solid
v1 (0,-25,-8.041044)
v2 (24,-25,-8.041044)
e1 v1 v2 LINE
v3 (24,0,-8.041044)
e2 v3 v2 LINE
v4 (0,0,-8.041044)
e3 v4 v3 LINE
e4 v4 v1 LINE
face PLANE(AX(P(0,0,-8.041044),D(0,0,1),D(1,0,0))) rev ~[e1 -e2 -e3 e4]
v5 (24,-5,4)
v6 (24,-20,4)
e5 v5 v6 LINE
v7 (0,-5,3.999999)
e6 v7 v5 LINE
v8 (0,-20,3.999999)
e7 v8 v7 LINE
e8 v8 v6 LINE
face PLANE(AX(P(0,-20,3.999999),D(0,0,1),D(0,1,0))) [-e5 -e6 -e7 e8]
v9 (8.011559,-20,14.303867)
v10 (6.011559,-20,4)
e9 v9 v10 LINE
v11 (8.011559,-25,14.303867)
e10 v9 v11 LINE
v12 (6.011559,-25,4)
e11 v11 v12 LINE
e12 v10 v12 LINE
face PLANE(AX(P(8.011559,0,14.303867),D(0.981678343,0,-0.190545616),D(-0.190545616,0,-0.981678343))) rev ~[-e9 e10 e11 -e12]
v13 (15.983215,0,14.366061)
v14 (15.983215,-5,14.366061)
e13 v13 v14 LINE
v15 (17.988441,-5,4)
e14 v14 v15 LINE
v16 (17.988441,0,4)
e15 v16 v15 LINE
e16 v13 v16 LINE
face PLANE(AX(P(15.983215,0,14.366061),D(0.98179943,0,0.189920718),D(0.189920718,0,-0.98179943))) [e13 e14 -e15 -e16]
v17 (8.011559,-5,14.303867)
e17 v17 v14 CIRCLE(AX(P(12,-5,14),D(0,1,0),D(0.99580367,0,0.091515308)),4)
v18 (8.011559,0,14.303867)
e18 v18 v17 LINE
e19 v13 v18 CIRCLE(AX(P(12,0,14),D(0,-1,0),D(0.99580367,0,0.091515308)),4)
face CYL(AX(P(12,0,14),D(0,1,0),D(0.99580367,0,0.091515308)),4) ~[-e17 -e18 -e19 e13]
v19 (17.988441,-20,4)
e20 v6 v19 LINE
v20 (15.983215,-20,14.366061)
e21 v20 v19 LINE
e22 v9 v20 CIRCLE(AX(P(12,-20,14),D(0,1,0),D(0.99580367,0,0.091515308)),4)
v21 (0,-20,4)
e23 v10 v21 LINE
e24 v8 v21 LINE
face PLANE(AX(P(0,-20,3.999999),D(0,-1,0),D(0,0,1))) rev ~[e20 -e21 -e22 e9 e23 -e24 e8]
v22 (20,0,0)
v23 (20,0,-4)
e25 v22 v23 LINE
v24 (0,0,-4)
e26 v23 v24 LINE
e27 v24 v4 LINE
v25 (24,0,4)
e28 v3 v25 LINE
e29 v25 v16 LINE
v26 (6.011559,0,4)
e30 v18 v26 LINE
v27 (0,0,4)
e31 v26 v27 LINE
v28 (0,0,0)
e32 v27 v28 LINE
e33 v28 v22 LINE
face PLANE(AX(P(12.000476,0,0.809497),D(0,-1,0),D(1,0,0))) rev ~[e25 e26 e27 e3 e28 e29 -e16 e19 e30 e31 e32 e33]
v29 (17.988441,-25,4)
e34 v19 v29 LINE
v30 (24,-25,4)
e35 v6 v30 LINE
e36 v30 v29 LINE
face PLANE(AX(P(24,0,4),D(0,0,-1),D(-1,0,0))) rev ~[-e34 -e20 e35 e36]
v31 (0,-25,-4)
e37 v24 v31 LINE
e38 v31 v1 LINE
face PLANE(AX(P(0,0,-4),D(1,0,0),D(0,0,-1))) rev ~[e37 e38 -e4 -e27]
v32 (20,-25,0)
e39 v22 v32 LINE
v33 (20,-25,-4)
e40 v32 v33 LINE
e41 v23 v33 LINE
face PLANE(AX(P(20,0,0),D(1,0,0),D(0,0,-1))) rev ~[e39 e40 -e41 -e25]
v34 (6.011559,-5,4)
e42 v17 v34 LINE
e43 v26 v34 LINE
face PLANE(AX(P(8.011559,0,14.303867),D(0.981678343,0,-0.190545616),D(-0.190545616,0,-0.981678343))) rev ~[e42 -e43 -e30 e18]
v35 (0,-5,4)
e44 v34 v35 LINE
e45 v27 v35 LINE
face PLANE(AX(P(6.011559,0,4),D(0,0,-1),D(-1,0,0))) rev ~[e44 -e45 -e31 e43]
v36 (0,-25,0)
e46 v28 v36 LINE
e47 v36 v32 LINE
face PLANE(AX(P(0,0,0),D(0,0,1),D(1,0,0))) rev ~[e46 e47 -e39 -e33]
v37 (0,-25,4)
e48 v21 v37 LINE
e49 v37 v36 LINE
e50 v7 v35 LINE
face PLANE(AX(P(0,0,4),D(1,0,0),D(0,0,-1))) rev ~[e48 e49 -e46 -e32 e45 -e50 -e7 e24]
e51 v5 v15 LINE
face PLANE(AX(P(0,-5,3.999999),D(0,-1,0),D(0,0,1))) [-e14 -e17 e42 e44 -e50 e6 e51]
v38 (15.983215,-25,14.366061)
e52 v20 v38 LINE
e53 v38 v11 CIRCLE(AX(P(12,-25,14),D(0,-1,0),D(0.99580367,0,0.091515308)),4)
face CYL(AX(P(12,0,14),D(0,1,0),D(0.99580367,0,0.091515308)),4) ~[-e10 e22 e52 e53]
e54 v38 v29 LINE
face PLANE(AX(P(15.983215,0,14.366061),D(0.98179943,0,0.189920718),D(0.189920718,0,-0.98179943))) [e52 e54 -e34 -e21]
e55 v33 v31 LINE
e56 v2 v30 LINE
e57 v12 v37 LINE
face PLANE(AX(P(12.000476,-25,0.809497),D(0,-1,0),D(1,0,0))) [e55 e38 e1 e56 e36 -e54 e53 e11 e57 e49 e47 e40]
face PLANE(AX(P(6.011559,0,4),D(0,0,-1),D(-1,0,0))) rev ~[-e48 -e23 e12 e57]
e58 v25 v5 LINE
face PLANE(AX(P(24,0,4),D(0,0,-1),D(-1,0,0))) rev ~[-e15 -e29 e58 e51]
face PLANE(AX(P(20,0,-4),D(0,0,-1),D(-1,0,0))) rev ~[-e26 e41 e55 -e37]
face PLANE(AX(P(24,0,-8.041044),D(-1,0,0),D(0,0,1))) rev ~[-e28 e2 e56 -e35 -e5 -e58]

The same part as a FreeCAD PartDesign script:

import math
import FreeCAD as App
import Part
import Sketcher
from FreeCAD import Vector


def add_polygon(sketch, points):
    """Adds a closed chain of lines whose ends are joined by coincident constraints."""
    first, n = sketch.GeometryCount, len(points)
    for a, b in zip(points, points[1:] + points[:1]):
        sketch.addGeometry(Part.LineSegment(App.Vector(*a, 0), App.Vector(*b, 0)), False)
    for i in range(n):
        sketch.addConstraint(Sketcher.Constraint("Coincident", first + i, 2, first + (i + 1) % n, 1))

doc = App.newDocument("Part")
params = doc.addObject("Spreadsheet::Sheet", "Params")
for row, (alias, value) in enumerate([
    ("sketch1_radius", "4 mm"),
    ("sketch1_width", "20 mm"),
    ("sketch1_width2", "24 mm"),
    ("sketch1_height", "4 mm"),
    ("pad1_length", "25 mm"),
    ("sketch2_width", "15 mm"),
], start=1):
    params.set(f"A{row}", alias)
    params.set(f"B{row}", "=" + value)
    params.setAlias(f"B{row}", alias)

body = doc.addObject("PartDesign::Body", "Body")

sketch1 = doc.addObject("Sketcher::SketchObject", "Sketch")
body.addObject(sketch1)
sketch1.AttachmentSupport = (doc.XZ_Plane, [""])
sketch1.MapMode = "FlatFace"
sketch1.addGeometry([
    Part.LineSegment(Vector(0, 0, 0), Vector(20, 0, 0)),
    Part.LineSegment(Vector(20, 0, 0), Vector(20, -4, 0)),
    Part.LineSegment(Vector(20, -4, 0), Vector(0, -4, 0)),
    Part.LineSegment(Vector(0, -4, 0), Vector(0, -8, 0)),
    Part.LineSegment(Vector(0, -8, 0), Vector(24, -8, 0)),
    Part.LineSegment(Vector(24, -8, 0), Vector(24, 4, 0)),
    Part.LineSegment(Vector(24, 4, 0), Vector(18, 4, 0)),
    Part.LineSegment(Vector(18, 4, 0), Vector(16, 14.4, 0)),
    Part.ArcOfCircle(Part.Circle(Vector(12, 14, 0), Vector(0, 0, 1), 4), math.radians(5), math.radians(176)),
    Part.LineSegment(Vector(8, 14.3, 0), Vector(6, 4, 0)),
    Part.LineSegment(Vector(6, 4, 0), Vector(0, 4, 0)),
    Part.LineSegment(Vector(0, 4, 0), Vector(0, 0, 0)),
], False)
sketch1.addConstraint([
    Sketcher.Constraint("Coincident", 0, 2, 1, 1),
    Sketcher.Constraint("Coincident", 1, 2, 2, 1),
    Sketcher.Constraint("Coincident", 2, 2, 3, 1),
    Sketcher.Constraint("Coincident", 3, 2, 4, 1),
    Sketcher.Constraint("Coincident", 4, 2, 5, 1),
    Sketcher.Constraint("Coincident", 5, 2, 6, 1),
    Sketcher.Constraint("Coincident", 6, 2, 7, 1),
    Sketcher.Constraint("Coincident", 7, 2, 8, 1),
    Sketcher.Constraint("Coincident", 8, 2, 9, 1),
    Sketcher.Constraint("Coincident", 9, 2, 10, 1),
    Sketcher.Constraint("Coincident", 10, 2, 11, 1),
    Sketcher.Constraint("Coincident", 11, 2, 0, 1),
    Sketcher.Constraint("Horizontal", 0),
    Sketcher.Constraint("Vertical", 1),
    Sketcher.Constraint("Horizontal", 2),
    Sketcher.Constraint("Vertical", 3),
    Sketcher.Constraint("Horizontal", 4),
    Sketcher.Constraint("Vertical", 5),
    Sketcher.Constraint("Horizontal", 6),
    Sketcher.Constraint("Horizontal", 10),
    Sketcher.Constraint("Vertical", 11),
    Sketcher.Constraint("Coincident", 11, 2, -1, 1),
    Sketcher.Constraint("Symmetric", 2, 2, 10, 2, -1, 1),
    Sketcher.Constraint("Horizontal", 6, 2, 9, 2),
    Sketcher.Constraint("Equal", 6, 10),
    Sketcher.Constraint("Radius", 8, 4.0),
    Sketcher.Constraint("DistanceX", 0, 1, 0, 2, 20.0),
    Sketcher.Constraint("DistanceX", 4, 1, 4, 2, 24.0),
    Sketcher.Constraint("DistanceY", 1, 2, 1, 1, 4.0),
    Sketcher.Constraint("DistanceX", -1, 1, 8, 3, 12.0),
    Sketcher.Constraint("DistanceY", -1, 1, 8, 3, 14.0),
    Sketcher.Constraint("DistanceX", 9, 2, 8, 2, 2.0),
    Sketcher.Constraint("DistanceX", 6, 2, 6, 1, 6.011559),
    Sketcher.Constraint("DistanceY", 3, 2, 3, 1, 4.041044),
    Sketcher.Constraint("DistanceY", -1, 1, 7, 2, 14.366061),
])
sketch1.setExpression("Constraints[25]", "Params.sketch1_radius")
sketch1.setExpression("Constraints[26]", "Params.sketch1_width")
sketch1.setExpression("Constraints[27]", "Params.sketch1_width2")
sketch1.setExpression("Constraints[28]", "Params.sketch1_height")
pad1 = doc.addObject("PartDesign::Pad", "Pad")
body.addObject(pad1)
pad1.Profile = sketch1
pad1.setExpression("Length", "Params.pad1_length")

sketch2 = doc.addObject("Sketcher::SketchObject", "Sketch001")
body.addObject(sketch2)
sketch2.AttachmentSupport = (doc.YZ_Plane, [""])
sketch2.MapMode = "FlatFace"
add_polygon(sketch2, [(-20, 21), (-20, 4), (-5, 4), (-5, 21)])
sketch2.addConstraint([
    Sketcher.Constraint("Vertical", 0),
    Sketcher.Constraint("Horizontal", 1),
    Sketcher.Constraint("Vertical", 2),
    Sketcher.Constraint("Horizontal", 3),
    Sketcher.Constraint("DistanceX", 1, 1, 1, 2, 15.0),
    Sketcher.Constraint("DistanceX", 0, 2, -1, 1, 20.0),
    Sketcher.Constraint("DistanceY", -1, 1, 0, 2, 3.999999),
    Sketcher.Constraint("DistanceY", 0, 2, 0, 1, 16.832567),
])
sketch2.setExpression("Constraints[8]", "Params.sketch2_width")
pocket1 = doc.addObject("PartDesign::Pocket", "Pocket")
body.addObject(pocket1)
pocket1.Profile = sketch2
pocket1.Type = "ThroughAll"
pocket1.Midplane = True

doc.recompute()
